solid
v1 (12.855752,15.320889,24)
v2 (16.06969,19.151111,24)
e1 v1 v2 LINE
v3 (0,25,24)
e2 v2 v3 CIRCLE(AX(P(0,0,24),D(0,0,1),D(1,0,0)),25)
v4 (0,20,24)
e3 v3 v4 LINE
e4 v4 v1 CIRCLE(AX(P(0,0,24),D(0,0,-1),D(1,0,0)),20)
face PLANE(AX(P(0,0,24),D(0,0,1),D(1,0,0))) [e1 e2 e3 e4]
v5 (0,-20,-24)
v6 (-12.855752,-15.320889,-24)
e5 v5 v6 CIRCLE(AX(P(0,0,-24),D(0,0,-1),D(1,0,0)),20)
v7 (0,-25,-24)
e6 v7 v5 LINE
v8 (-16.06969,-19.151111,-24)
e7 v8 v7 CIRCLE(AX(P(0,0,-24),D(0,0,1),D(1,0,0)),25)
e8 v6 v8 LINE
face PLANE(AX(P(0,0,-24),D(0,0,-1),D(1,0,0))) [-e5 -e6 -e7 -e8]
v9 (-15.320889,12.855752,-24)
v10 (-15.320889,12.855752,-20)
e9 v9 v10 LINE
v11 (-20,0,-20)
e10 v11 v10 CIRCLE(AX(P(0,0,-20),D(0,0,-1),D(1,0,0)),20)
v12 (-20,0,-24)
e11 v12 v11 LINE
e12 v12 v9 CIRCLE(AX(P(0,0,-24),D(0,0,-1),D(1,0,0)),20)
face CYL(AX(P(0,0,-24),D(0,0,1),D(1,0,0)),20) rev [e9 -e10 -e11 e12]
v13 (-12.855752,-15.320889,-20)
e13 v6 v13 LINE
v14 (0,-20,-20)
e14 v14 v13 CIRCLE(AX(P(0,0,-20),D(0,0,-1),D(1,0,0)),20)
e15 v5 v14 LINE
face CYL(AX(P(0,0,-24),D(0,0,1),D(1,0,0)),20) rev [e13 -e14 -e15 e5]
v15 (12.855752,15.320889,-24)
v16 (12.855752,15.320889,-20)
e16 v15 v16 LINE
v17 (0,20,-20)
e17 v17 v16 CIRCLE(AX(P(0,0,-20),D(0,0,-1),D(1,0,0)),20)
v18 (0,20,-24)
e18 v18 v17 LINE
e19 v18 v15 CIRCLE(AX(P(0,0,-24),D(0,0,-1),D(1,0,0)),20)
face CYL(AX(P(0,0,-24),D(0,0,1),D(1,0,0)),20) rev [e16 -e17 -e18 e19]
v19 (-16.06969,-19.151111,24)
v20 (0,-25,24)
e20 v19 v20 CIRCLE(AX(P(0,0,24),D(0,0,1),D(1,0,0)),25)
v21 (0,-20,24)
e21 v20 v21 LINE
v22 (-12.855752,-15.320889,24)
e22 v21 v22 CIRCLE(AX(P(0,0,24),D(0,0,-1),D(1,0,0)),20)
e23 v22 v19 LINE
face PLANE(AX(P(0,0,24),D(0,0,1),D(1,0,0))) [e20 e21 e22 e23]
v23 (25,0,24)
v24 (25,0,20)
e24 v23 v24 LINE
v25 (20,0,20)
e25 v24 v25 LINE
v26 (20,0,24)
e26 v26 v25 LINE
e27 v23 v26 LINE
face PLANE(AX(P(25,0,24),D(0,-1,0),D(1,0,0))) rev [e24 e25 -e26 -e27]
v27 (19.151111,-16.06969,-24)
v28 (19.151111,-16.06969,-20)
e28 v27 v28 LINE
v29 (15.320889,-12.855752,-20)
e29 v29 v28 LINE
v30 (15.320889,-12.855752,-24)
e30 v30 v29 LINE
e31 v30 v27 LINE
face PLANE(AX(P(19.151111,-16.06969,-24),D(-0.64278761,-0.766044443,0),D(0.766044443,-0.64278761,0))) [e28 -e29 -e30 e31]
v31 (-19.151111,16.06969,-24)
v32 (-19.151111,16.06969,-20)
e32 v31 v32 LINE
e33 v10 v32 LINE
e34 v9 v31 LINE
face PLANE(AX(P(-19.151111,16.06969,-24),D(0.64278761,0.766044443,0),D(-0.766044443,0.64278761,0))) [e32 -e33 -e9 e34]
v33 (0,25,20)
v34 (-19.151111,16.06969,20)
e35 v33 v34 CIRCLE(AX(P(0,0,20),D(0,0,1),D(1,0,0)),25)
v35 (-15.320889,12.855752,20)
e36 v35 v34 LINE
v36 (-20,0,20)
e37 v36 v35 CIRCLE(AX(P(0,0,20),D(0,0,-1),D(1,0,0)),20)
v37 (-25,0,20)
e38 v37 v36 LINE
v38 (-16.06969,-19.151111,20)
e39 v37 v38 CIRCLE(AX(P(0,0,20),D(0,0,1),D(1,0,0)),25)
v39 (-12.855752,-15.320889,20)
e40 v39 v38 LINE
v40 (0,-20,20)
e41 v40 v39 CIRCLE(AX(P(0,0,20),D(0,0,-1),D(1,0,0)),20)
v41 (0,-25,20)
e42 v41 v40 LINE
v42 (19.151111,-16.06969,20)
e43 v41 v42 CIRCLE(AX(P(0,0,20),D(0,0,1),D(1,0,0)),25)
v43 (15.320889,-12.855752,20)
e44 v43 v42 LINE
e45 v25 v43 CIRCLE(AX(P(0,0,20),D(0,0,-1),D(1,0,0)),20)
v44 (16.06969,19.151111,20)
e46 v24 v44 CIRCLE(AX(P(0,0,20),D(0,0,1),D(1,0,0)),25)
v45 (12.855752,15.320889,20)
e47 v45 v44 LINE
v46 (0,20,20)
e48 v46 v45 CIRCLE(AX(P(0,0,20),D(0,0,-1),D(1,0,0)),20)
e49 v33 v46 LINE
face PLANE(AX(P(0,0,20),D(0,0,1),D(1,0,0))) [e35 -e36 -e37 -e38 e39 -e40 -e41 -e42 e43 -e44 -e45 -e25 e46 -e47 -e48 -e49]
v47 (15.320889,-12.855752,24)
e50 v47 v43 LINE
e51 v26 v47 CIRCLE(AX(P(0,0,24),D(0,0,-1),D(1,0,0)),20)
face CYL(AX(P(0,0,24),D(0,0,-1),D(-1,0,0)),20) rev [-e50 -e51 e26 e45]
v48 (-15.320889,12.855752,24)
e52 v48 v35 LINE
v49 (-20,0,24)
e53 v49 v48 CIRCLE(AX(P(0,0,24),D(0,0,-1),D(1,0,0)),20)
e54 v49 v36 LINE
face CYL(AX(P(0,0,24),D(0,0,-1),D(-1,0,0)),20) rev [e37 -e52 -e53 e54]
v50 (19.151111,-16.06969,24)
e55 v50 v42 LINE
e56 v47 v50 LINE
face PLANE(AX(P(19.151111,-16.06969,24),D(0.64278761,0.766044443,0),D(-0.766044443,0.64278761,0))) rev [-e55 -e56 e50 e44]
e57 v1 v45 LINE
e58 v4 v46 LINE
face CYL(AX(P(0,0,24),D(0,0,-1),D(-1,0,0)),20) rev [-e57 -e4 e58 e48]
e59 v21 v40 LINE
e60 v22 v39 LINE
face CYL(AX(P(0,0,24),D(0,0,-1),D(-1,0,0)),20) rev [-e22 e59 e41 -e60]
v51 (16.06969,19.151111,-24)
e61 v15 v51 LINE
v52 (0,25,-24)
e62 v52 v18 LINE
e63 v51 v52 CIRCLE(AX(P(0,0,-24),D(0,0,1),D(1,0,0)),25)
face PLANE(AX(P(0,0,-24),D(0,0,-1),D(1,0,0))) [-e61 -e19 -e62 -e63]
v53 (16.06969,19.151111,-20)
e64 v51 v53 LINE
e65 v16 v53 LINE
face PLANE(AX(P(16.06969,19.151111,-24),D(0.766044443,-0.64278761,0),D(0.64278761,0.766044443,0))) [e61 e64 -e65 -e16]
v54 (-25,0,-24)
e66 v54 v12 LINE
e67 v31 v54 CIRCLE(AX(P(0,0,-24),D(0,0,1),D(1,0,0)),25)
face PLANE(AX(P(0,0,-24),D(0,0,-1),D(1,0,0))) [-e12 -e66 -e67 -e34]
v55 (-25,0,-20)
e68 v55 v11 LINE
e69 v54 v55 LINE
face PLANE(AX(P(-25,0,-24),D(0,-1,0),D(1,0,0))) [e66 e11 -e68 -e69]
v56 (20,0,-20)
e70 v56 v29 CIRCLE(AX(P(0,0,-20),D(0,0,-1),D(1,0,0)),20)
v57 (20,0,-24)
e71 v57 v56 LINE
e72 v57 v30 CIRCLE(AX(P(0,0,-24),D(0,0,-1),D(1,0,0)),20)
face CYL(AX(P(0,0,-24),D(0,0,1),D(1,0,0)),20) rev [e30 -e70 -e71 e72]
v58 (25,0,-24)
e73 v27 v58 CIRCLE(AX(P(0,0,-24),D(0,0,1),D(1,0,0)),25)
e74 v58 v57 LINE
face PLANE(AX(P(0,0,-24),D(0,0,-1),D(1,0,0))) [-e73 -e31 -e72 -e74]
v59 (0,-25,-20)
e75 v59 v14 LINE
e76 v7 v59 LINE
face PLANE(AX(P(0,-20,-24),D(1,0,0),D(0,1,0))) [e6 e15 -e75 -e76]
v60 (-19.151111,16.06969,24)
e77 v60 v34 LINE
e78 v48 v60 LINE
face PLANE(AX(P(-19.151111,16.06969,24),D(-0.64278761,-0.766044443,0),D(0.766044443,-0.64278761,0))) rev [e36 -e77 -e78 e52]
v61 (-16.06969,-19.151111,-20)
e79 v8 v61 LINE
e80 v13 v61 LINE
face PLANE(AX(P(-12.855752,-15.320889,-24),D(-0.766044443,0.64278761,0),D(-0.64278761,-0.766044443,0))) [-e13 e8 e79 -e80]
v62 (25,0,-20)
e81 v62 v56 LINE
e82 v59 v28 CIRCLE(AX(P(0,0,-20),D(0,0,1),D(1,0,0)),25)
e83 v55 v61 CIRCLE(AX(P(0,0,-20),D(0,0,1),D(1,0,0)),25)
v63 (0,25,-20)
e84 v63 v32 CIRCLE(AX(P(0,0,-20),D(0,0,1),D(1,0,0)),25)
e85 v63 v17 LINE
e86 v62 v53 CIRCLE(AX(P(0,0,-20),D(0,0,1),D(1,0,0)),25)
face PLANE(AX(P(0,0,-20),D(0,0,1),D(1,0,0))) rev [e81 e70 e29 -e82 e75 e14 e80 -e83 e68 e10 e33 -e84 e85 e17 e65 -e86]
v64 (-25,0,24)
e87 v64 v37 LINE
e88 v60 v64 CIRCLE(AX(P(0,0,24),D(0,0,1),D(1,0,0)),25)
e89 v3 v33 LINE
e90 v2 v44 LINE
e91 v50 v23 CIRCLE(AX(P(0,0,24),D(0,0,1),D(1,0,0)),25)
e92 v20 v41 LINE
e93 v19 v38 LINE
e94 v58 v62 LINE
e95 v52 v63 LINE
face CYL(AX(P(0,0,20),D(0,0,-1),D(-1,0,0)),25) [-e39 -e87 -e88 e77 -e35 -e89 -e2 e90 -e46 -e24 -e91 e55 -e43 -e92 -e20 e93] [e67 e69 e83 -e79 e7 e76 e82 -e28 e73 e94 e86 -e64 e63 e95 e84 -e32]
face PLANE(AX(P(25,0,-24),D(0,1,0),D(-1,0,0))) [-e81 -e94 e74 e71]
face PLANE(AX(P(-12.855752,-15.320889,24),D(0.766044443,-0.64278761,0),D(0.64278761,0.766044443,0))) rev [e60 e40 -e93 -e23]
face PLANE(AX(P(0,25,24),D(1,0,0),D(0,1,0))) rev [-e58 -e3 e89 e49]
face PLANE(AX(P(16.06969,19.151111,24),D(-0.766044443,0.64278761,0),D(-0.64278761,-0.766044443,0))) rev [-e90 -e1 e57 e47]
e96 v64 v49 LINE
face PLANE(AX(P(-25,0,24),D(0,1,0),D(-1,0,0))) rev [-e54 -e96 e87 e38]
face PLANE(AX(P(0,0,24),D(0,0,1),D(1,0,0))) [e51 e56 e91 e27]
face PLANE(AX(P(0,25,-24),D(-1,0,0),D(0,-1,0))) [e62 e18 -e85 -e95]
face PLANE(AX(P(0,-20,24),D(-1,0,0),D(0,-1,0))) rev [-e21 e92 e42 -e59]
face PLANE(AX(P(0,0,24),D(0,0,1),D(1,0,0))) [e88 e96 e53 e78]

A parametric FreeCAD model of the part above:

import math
import FreeCAD as App
import Part
import Sketcher
Q = App.Units.Quantity

doc = App.newDocument("Part")
params = doc.addObject("Spreadsheet::Sheet", "Params")
for row, (alias, value) in enumerate([
    ("sketch1_diameter", "50 mm"),
    ("pad1_length", "40 mm"),
    ("sketch2_radius", "20 mm"),
    ("sketch2_radius2", "25 mm"),
    ("pad2_length", "4 mm"),
], start=1):
    params.set(f"A{row}", alias)
    params.set(f"B{row}", "=" + value)
    params.setAlias(f"B{row}", alias)

body = doc.addObject("PartDesign::Body", "Body")

# Sketch on XY plane
sketch1 = body.newObject("Sketcher::SketchObject", "Sketch")
sketch1.AttachmentSupport = (doc.getObject("XY_Plane"), [""])
sketch1.MapMode = "FlatFace"
sketch1.addGeometry(Part.Circle(App.Vector(0, 0, 0), App.Vector(0, 0, 1), 25), False)
sketch1.addConstraint([
    Sketcher.Constraint("Coincident", 0, 3, -1, 1),
    Sketcher.Constraint("Diameter", 0, Q("50 mm")),
])
sketch1.setExpression("Constraints[1]", "Params.sketch1_diameter")
pad1 = body.newObject("PartDesign::Pad", "Pad")
pad1.Profile = sketch1
pad1.setExpression("Length", "Params.pad1_length")
pad1.Midplane = True

# Sketch on XY plane
sketch2 = body.newObject("Sketcher::SketchObject", "Sketch001")
sketch2.AttachmentSupport = (doc.getObject("XY_Plane"), [""])
sketch2.MapMode = "FlatFace"
sketch2.AttachmentOffset = App.Placement(App.Vector(0, 0, 24), App.Rotation())
sketch2.addGeometry([
    Part.LineSegment(App.Vector(-25, 0, 0), App.Vector(-20, 0, 0)),  # 0
    Part.ArcOfCircle(Part.Circle(App.Vector(0, 0, 0), App.Vector(0, 0, 1), 20), math.radians(140), math.radians(180)),  # 1
    Part.LineSegment(App.Vector(-15, 13, 0), App.Vector(-19, 16, 0)),  # 2
    Part.ArcOfCircle(Part.Circle(App.Vector(0, 0, 0), App.Vector(0, 0, 1), 25), math.radians(140), math.radians(180)),  # 3
    Part.LineSegment(App.Vector(13, 15, 0), App.Vector(16, 19, 0)),  # 4
    Part.ArcOfCircle(Part.Circle(App.Vector(0, 0, 0), App.Vector(0, 0, 1), 25), math.radians(50), math.radians(90)),  # 5
    Part.LineSegment(App.Vector(0, 25, 0), App.Vector(0, 20, 0)),  # 6
    Part.ArcOfCircle(Part.Circle(App.Vector(0, 0, 0), App.Vector(0, 0, 1), 20), math.radians(50), math.radians(90)),  # 7
    Part.LineSegment(App.Vector(25, 0, 0), App.Vector(20, 0, 0)),  # 8
    Part.ArcOfCircle(Part.Circle(App.Vector(0, 0, 0), App.Vector(0, 0, 1), 20), math.radians(-40), math.radians(0)),  # 9
    Part.LineSegment(App.Vector(15, -13, 0), App.Vector(19, -16, 0)),  # 10
    Part.ArcOfCircle(Part.Circle(App.Vector(0, 0, 0), App.Vector(0, 0, 1), 25), math.radians(-40), math.radians(0)),  # 11
    Part.LineSegment(App.Vector(0, -25, 0), App.Vector(0, -20, 0)),  # 12
    Part.ArcOfCircle(Part.Circle(App.Vector(0, 0, 0), App.Vector(0, 0, 1), 20), math.radians(-130), math.radians(-90)),  # 13
    Part.LineSegment(App.Vector(-13, -15, 0), App.Vector(-16, -19, 0)),  # 14
    Part.ArcOfCircle(Part.Circle(App.Vector(0, 0, 0), App.Vector(0, 0, 1), 25), math.radians(-130), math.radians(-90)),  # 15
], False)
sketch2.addConstraint([
    Sketcher.Constraint("Coincident", 0, 2, 1, 2),
    Sketcher.Constraint("Coincident", 1, 1, 2, 1),
    Sketcher.Constraint("Coincident", 2, 2, 3, 1),
    Sketcher.Constraint("Coincident", 3, 2, 0, 1),
    Sketcher.Constraint("Coincident", 4, 2, 5, 1),
    Sketcher.Constraint("Coincident", 5, 2, 6, 1),
    Sketcher.Constraint("Coincident", 6, 2, 7, 2),
    Sketcher.Constraint("Coincident", 7, 1, 4, 1),
    Sketcher.Constraint("Coincident", 8, 2, 9, 2),
    Sketcher.Constraint("Coincident", 9, 1, 10, 1),
    Sketcher.Constraint("Coincident", 10, 2, 11, 1),
    Sketcher.Constraint("Coincident", 11, 2, 8, 1),
    Sketcher.Constraint("Coincident", 12, 2, 13, 2),
    Sketcher.Constraint("Coincident", 13, 1, 14, 1),
    Sketcher.Constraint("Coincident", 14, 2, 15, 1),
    Sketcher.Constraint("Coincident", 15, 2, 12, 1),
    Sketcher.Constraint("Horizontal", 0),
    Sketcher.Constraint("Vertical", 6),
    Sketcher.Constraint("Horizontal", 8),
    Sketcher.Constraint("Vertical", 12),
    Sketcher.Constraint("Coincident", 1, 3, -1, 1),
    Sketcher.Constraint("Coincident", 3, 3, -1, 1),
    Sketcher.Constraint("Coincident", 5, 3, -1, 1),
    Sketcher.Constraint("Coincident", 7, 3, -1, 1),
    Sketcher.Constraint("Coincident", 9, 3, -1, 1),
    Sketcher.Constraint("Coincident", 11, 3, -1, 1),
    Sketcher.Constraint("Coincident", 13, 3, -1, 1),
    Sketcher.Constraint("Coincident", 15, 3, -1, 1),
    Sketcher.Constraint("Equal", 3, 5),
    Sketcher.Constraint("Equal", 1, 7),
    Sketcher.Constraint("Equal", 7, 9),
    Sketcher.Constraint("Equal", 5, 11),
    Sketcher.Constraint("Equal", 9, 13),
    Sketcher.Constraint("Equal", 11, 15),
    Sketcher.Constraint("PointOnObject", 0, 2, -1),
    Sketcher.Constraint("PointOnObject", 5, 2, -2),
    Sketcher.Constraint("PointOnObject", 8, 2, -1),
    Sketcher.Constraint("PointOnObject", 12, 2, -2),
    Sketcher.Constraint("Perpendicular", 2, 4),
    Sketcher.Constraint("Perpendicular", 4, 10),
    Sketcher.Constraint("Perpendicular", 10, 14),
    Sketcher.Constraint("Radius", 1, Q("20 mm")),
    Sketcher.Constraint("Radius", 3, Q("25 mm")),
    Sketcher.Constraint("Angle", 2, Q("140 deg")),
    Sketcher.Constraint("DistanceX", 1, 1, -1, 1, Q("15.320889 mm")),
    Sketcher.Constraint("DistanceX", -1, 1, 4, 2, Q("16.06969 mm")),
    Sketcher.Constraint("DistanceX", -1, 1, 9, 1, Q("15.320889 mm")),
    Sketcher.Constraint("DistanceY", 13, 1, -1, 1, Q("15.320889 mm")),
])
sketch2.setExpression("Constraints[41]", "Params.sketch2_radius")
sketch2.setExpression("Constraints[42]", "Params.sketch2_radius2")
pad2 = body.newObject("PartDesign::Pad", "Pad001")
pad2.Profile = sketch2
pad2.setExpression("Length", "Params.pad2_length")
pad2.Reversed = True
doc.recompute()

mirrored = body.newObject("PartDesign::Mirrored", "Mirrored")
mirrored.Originals = [pad2]
mirrored.MirrorPlane = (doc.getObject("XY_Plane"), [""])
body.Tip = mirrored

doc.recompute()
